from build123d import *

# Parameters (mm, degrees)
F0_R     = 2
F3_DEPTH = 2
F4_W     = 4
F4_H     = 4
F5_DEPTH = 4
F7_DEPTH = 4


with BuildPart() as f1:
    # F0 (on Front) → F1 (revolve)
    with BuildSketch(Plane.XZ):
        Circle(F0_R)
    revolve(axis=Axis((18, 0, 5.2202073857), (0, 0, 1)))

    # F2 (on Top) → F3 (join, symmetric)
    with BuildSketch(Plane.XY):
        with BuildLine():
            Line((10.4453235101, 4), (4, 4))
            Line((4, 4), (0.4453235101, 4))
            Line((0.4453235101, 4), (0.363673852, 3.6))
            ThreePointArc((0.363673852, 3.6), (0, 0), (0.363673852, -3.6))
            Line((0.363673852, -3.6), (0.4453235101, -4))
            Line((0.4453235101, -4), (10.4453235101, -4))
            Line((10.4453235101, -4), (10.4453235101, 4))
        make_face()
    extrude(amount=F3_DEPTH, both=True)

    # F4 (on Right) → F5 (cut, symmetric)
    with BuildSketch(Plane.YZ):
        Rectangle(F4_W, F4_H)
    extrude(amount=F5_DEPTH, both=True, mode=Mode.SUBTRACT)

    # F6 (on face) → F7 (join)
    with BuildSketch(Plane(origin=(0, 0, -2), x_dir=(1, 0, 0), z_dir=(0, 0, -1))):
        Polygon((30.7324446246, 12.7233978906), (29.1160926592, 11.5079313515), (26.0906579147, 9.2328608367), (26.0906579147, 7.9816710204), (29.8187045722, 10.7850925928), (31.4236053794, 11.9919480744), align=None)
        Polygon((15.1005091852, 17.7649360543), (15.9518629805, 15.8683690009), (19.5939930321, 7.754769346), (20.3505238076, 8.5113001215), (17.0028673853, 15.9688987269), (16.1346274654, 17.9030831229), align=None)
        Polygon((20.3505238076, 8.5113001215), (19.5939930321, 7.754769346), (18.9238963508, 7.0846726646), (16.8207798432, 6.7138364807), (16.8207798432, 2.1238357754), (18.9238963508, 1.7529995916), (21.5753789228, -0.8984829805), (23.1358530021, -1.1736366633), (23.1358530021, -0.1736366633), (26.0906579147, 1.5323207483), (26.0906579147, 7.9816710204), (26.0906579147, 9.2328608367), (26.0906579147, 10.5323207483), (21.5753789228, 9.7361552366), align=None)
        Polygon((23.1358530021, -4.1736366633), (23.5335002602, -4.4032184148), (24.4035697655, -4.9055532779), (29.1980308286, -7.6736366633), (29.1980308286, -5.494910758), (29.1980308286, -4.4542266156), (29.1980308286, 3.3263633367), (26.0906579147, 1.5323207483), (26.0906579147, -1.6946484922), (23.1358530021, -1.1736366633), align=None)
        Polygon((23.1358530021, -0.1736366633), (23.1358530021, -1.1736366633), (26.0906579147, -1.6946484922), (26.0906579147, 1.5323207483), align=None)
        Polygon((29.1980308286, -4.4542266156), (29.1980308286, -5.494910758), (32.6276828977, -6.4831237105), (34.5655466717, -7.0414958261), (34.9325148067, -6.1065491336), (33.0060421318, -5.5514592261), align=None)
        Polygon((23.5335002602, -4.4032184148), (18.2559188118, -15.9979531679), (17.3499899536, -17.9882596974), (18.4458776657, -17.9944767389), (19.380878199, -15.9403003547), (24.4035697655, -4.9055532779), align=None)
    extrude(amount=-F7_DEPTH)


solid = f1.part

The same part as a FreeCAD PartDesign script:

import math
import FreeCAD as App
import Part
import Sketcher

V = App.Vector
Q = App.Units.Quantity

doc = App.newDocument("Part")
body = doc.addObject("PartDesign::Body", "Body")

# Sketch on XZ plane
sketch1 = doc.addObject("Sketcher::SketchObject", "Sketch")
body.addObject(sketch1)
sketch1.AttachmentSupport = (doc.XZ_Plane, [""])
sketch1.MapMode = "FlatFace"
sketch1.addGeometry(Part.Circle(V(0, 0, 0), V(0, 0, 1), 2), False)
sketch1.addGeometry(Part.LineSegment(V(18, 0, 0), V(18, 10, 0)), True)  # axis
sketch1.addConstraint(Sketcher.Constraint("Vertical", 1))
sketch1.addConstraint(Sketcher.Constraint("Coincident", 0, 3, -1, 1))
sketch1.addConstraint(Sketcher.Constraint("PointOnObject", 1, 1, -1))
sketch1.addConstraint(Sketcher.Constraint("Diameter", 0, Q("4 mm")))
sketch1.addConstraint(Sketcher.Constraint("DistanceY", 1, 1, 1, 2, Q("10 mm")))
sketch1.addConstraint(Sketcher.Constraint("DistanceX", -1, 1, 1, 1, Q("18 mm")))
revolution = doc.addObject("PartDesign::Revolution", "Revolution")
body.addObject(revolution)
revolution.Profile = sketch1
revolution.ReferenceAxis = (sketch1, ["Axis0"])
revolution.Angle = 360

# Sketch on XY plane
sketch2 = doc.addObject("Sketcher::SketchObject", "Sketch001")
body.addObject(sketch2)
sketch2.AttachmentSupport = (doc.XY_Plane, [""])
sketch2.MapMode = "FlatFace"
sketch2.addGeometry(Part.LineSegment(V(10.45, 4, 0), V(0.45, 4, 0)), False)
sketch2.addGeometry(Part.LineSegment(V(0.45, 4, 0), V(0.36, 3.6, 0)), False)
sketch2.addGeometry(Part.ArcOfCircle(Part.Circle(V(18, 0, 0), V(0, 0, 1), 18), math.radians(168), math.radians(192)), False)
sketch2.addGeometry(Part.LineSegment(V(0.36, -3.6, 0), V(0.45, -4, 0)), False)
sketch2.addGeometry(Part.LineSegment(V(0.45, -4, 0), V(10.45, -4, 0)), False)
sketch2.addGeometry(Part.LineSegment(V(10.45, -4, 0), V(10.45, 4, 0)), False)
sketch2.addConstraint(Sketcher.Constraint("Coincident", 0, 2, 1, 1))
sketch2.addConstraint(Sketcher.Constraint("Tangent", 1, 2, 2, 1))
sketch2.addConstraint(Sketcher.Constraint("Tangent", 2, 2, 3, 1))
sketch2.addConstraint(Sketcher.Constraint("Coincident", 3, 2, 4, 1))
sketch2.addConstraint(Sketcher.Constraint("Coincident", 4, 2, 5, 1))
sketch2.addConstraint(Sketcher.Constraint("Coincident", 5, 2, 0, 1))
sketch2.addConstraint(Sketcher.Constraint("Horizontal", 0))
sketch2.addConstraint(Sketcher.Constraint("Horizontal", 4))
sketch2.addConstraint(Sketcher.Constraint("Vertical", 5))
sketch2.addConstraint(Sketcher.Constraint("Symmetric", 1, 2, 2, 2, -1))
sketch2.addConstraint(Sketcher.Constraint("Vertical", 0, 2, 3, 2))
sketch2.addConstraint(Sketcher.Constraint("Radius", 2, Q("18 mm")))
sketch2.addConstraint(Sketcher.Constraint("DistanceX", 0, 2, 0, 1, Q("10 mm")))
sketch2.addConstraint(Sketcher.Constraint("DistanceY", 5, 1, 5, 2, Q("8 mm")))
sketch2.addConstraint(Sketcher.Constraint("DistanceX", -1, 1, 2, 3, Q("18 mm")))
sketch2.addConstraint(Sketcher.Constraint("DistanceY", -1, 1, 1, 2, Q("3.6 mm")))
pad1 = doc.addObject("PartDesign::Pad", "Pad")
body.addObject(pad1)
pad1.Profile = sketch2
pad1.Length = 4
pad1.Midplane = True

# Sketch on YZ plane
sketch3 = doc.addObject("Sketcher::SketchObject", "Sketch002")
body.addObject(sketch3)
sketch3.AttachmentSupport = (doc.YZ_Plane, [""])
sketch3.MapMode = "FlatFace"
sketch3.addGeometry(Part.LineSegment(V(-2, 2, 0), V(-2, -2, 0)), False)
sketch3.addGeometry(Part.LineSegment(V(-2, -2, 0), V(2, -2, 0)), False)
sketch3.addGeometry(Part.LineSegment(V(2, -2, 0), V(2, 2, 0)), False)
sketch3.addGeometry(Part.LineSegment(V(2, 2, 0), V(-2, 2, 0)), False)
sketch3.addConstraint(Sketcher.Constraint("Coincident", 0, 2, 1, 1))
sketch3.addConstraint(Sketcher.Constraint("Coincident", 1, 2, 2, 1))
sketch3.addConstraint(Sketcher.Constraint("Coincident", 2, 2, 3, 1))
sketch3.addConstraint(Sketcher.Constraint("Coincident", 3, 2, 0, 1))
sketch3.addConstraint(Sketcher.Constraint("Vertical", 0))
sketch3.addConstraint(Sketcher.Constraint("Horizontal", 1))
sketch3.addConstraint(Sketcher.Constraint("Vertical", 2))
sketch3.addConstraint(Sketcher.Constraint("Horizontal", 3))
sketch3.addConstraint(Sketcher.Constraint("Symmetric", 0, 2, 2, 2, -1, 1))
sketch3.addConstraint(Sketcher.Constraint("Equal", 3, 0))
sketch3.addConstraint(Sketcher.Constraint("DistanceX", 1, 1, 1, 2, Q("4 mm")))
pocket1 = doc.addObject("PartDesign::Pocket", "Pocket")
body.addObject(pocket1)
pocket1.Profile = sketch3
pocket1.Length = 8
pocket1.Midplane = True

# Sketch on XY plane
sketch4 = doc.addObject("Sketcher::SketchObject", "Sketch003")
body.addObject(sketch4)
sketch4.AttachmentSupport = (doc.XY_Plane, [""])
sketch4.MapMode = "FlatFace"
sketch4.AttachmentOffset = App.Placement(V(0, 0, -2), App.Rotation())
sketch4.addGeometry(Part.LineSegment(V(30.73, -12.72, 0), V(29.12, -11.51, 0)), False)
sketch4.addGeometry(Part.LineSegment(V(29.12, -11.51, 0), V(26.09, -9.23, 0)), False)
sketch4.addGeometry(Part.LineSegment(V(26.09, -9.23, 0), V(26.09, -10.53, 0)), False)
sketch4.addGeometry(Part.LineSegment(V(26.09, -10.53, 0), V(21.58, -9.74, 0)), False)
sketch4.addGeometry(Part.LineSegment(V(21.58, -9.74, 0), V(20.35, -8.51, 0)), False)
sketch4.addGeometry(Part.LineSegment(V(20.35, -8.51, 0), V(17, -15.97, 0)), False)
sketch4.addGeometry(Part.LineSegment(V(17, -15.97, 0), V(16.13, -17.9, 0)), False)
sketch4.addGeometry(Part.LineSegment(V(16.13, -17.9, 0), V(15.1, -17.76, 0)), False)
sketch4.addGeometry(Part.LineSegment(V(15.1, -17.76, 0), V(15.95, -15.87, 0)), False)
sketch4.addGeometry(Part.LineSegment(V(15.95, -15.87, 0), V(19.59, -7.75, 0)), False)
sketch4.addGeometry(Part.LineSegment(V(19.59, -7.75, 0), V(18.92, -7.08, 0)), False)
sketch4.addGeometry(Part.LineSegment(V(18.92, -7.08, 0), V(16.82, -6.71, 0)), False)
sketch4.addGeometry(Part.LineSegment(V(16.82, -6.71, 0), V(16.82, -2.12, 0)), False)
sketch4.addGeometry(Part.LineSegment(V(16.82, -2.12, 0), V(18.92, -1.75, 0)), False)
sketch4.addGeometry(Part.LineSegment(V(18.92, -1.75, 0), V(21.58, 0.9, 0)), False)
sketch4.addGeometry(Part.LineSegment(V(21.58, 0.9, 0), V(23.14, 1.17, 0)), False)
sketch4.addGeometry(Part.LineSegment(V(23.14, 1.17, 0), V(23.14, 4.17, 0)), False)
sketch4.addGeometry(Part.LineSegment(V(23.14, 4.17, 0), V(23.53, 4.4, 0)), False)
sketch4.addGeometry(Part.LineSegment(V(23.53, 4.4, 0), V(18.26, 16, 0)), False)
sketch4.addGeometry(Part.LineSegment(V(18.26, 16, 0), V(17.35, 17.99, 0)), False)
sketch4.addGeometry(Part.LineSegment(V(17.35, 17.99, 0), V(18.45, 17.99, 0)), False)
sketch4.addGeometry(Part.LineSegment(V(18.45, 17.99, 0), V(19.38, 15.94, 0)), False)
sketch4.addGeometry(Part.LineSegment(V(19.38, 15.94, 0), V(24.4, 4.91, 0)), False)
sketch4.addGeometry(Part.LineSegment(V(24.4, 4.91, 0), V(29.2, 7.67, 0)), False)
sketch4.addGeometry(Part.LineSegment(V(29.2, 7.67, 0), V(29.2, 5.49, 0)), False)
sketch4.addGeometry(Part.LineSegment(V(29.2, 5.49, 0), V(32.63, 6.48, 0)), False)
sketch4.addGeometry(Part.LineSegment(V(32.63, 6.48, 0), V(34.57, 7.04, 0)), False)
sketch4.addGeometry(Part.LineSegment(V(34.57, 7.04, 0), V(34.93, 6.11, 0)), False)
sketch4.addGeometry(Part.LineSegment(V(34.93, 6.11, 0), V(33.01, 5.55, 0)), False)
sketch4.addGeometry(Part.LineSegment(V(33.01, 5.55, 0), V(29.2, 4.45, 0)), False)
sketch4.addGeometry(Part.LineSegment(V(29.2, 4.45, 0), V(29.2, -3.33, 0)), False)
sketch4.addGeometry(Part.LineSegment(V(29.2, -3.33, 0), V(26.09, -1.53, 0)), False)
sketch4.addGeometry(Part.LineSegment(V(26.09, -1.53, 0), V(26.09, -7.98, 0)), False)
sketch4.addGeometry(Part.LineSegment(V(26.09, -7.98, 0), V(29.82, -10.79, 0)), False)
sketch4.addGeometry(Part.LineSegment(V(29.82, -10.79, 0), V(31.42, -11.99, 0)), False)
sketch4.addGeometry(Part.LineSegment(V(31.42, -11.99, 0), V(30.73, -12.72, 0)), False)
sketch4.addConstraint(Sketcher.Constraint("Coincident", 0, 2, 1, 1))
sketch4.addConstraint(Sketcher.Constraint("Coincident", 1, 2, 2, 1))
sketch4.addConstraint(Sketcher.Constraint("Coincident", 2, 2, 3, 1))
sketch4.addConstraint(Sketcher.Constraint("Coincident", 3, 2, 4, 1))
sketch4.addConstraint(Sketcher.Constraint("Coincident", 4, 2, 5, 1))
sketch4.addConstraint(Sketcher.Constraint("Coincident", 5, 2, 6, 1))
sketch4.addConstraint(Sketcher.Constraint("Coincident", 6, 2, 7, 1))
sketch4.addConstraint(Sketcher.Constraint("Coincident", 7, 2, 8, 1))
sketch4.addConstraint(Sketcher.Constraint("Coincident", 8, 2, 9, 1))
sketch4.addConstraint(Sketcher.Constraint("Coincident", 9, 2, 10, 1))
sketch4.addConstraint(Sketcher.Constraint("Coincident", 10, 2, 11, 1))
sketch4.addConstraint(Sketcher.Constraint("Coincident", 11, 2, 12, 1))
sketch4.addConstraint(Sketcher.Constraint("Coincident", 12, 2, 13, 1))
sketch4.addConstraint(Sketcher.Constraint("Coincident", 13, 2, 14, 1))
sketch4.addConstraint(Sketcher.Constraint("Coincident", 14, 2, 15, 1))
sketch4.addConstraint(Sketcher.Constraint("Coincident", 15, 2, 16, 1))
sketch4.addConstraint(Sketcher.Constraint("Coincident", 16, 2, 17, 1))
sketch4.addConstraint(Sketcher.Constraint("Coincident", 17, 2, 18, 1))
sketch4.addConstraint(Sketcher.Constraint("Coincident", 18, 2, 19, 1))
sketch4.addConstraint(Sketcher.Constraint("Coincident", 19, 2, 20, 1))
sketch4.addConstraint(Sketcher.Constraint("Coincident", 20, 2, 21, 1))
sketch4.addConstraint(Sketcher.Constraint("Coincident", 21, 2, 22, 1))
sketch4.addConstraint(Sketcher.Constraint("Coincident", 22, 2, 23, 1))
sketch4.addConstraint(Sketcher.Constraint("Coincident", 23, 2, 24, 1))
sketch4.addConstraint(Sketcher.Constraint("Coincident", 24, 2, 25, 1))
sketch4.addConstraint(Sketcher.Constraint("Coincident", 25, 2, 26, 1))
sketch4.addConstraint(Sketcher.Constraint("Coincident", 26, 2, 27, 1))
sketch4.addConstraint(Sketcher.Constraint("Coincident", 27, 2, 28, 1))
sketch4.addConstraint(Sketcher.Constraint("Coincident", 28, 2, 29, 1))
sketch4.addConstraint(Sketcher.Constraint("Coincident", 29, 2, 30, 1))
sketch4.addConstraint(Sketcher.Constraint("Coincident", 30, 2, 31, 1))
sketch4.addConstraint(Sketcher.Constraint("Coincident", 31, 2, 32, 1))
sketch4.addConstraint(Sketcher.Constraint("Coincident", 32, 2, 33, 1))
sketch4.addConstraint(Sketcher.Constraint("Coincident", 33, 2, 34, 1))
sketch4.addConstraint(Sketcher.Constraint("Coincident", 34, 2, 35, 1))
sketch4.addConstraint(Sketcher.Constraint("Coincident", 35, 2, 0, 1))
sketch4.addConstraint(Sketcher.Constraint("Vertical", 2))
sketch4.addConstraint(Sketcher.Constraint("Vertical", 12))
sketch4.addConstraint(Sketcher.Constraint("Vertical", 16))
sketch4.addConstraint(Sketcher.Constraint("Vertical", 24))
sketch4.addConstraint(Sketcher.Constraint("Vertical", 30))
sketch4.addConstraint(Sketcher.Constraint("Vertical", 32))
sketch4.addConstraint(Sketcher.Constraint("Parallel", 0, 1))
sketch4.addConstraint(Sketcher.Constraint("Parallel", 5, 6))
sketch4.addConstraint(Sketcher.Constraint("Parallel", 6, 8))
sketch4.addConstraint(Sketcher.Constraint("Parallel", 8, 9))
sketch4.addConstraint(Sketcher.Constraint("Parallel", 4, 10))
sketch4.addConstraint(Sketcher.Constraint("Parallel", 3, 11))
sketch4.addConstraint(Sketcher.Constraint("Perpendicular", 10, 14))
sketch4.addConstraint(Sketcher.Constraint("Parallel", 13, 15))
sketch4.addConstraint(Sketcher.Constraint("Parallel", 18, 19))
sketch4.addConstraint(Sketcher.Constraint("Parallel", 19, 21))
sketch4.addConstraint(Sketcher.Constraint("Parallel", 21, 22))
sketch4.addConstraint(Sketcher.Constraint("Parallel", 17, 23))
sketch4.addConstraint(Sketcher.Constraint("Parallel", 25, 26))
sketch4.addConstraint(Sketcher.Constraint("Parallel", 26, 28))
sketch4.addConstraint(Sketcher.Constraint("Parallel", 28, 29))
sketch4.addConstraint(Sketcher.Constraint("Parallel", 1, 33))
sketch4.addConstraint(Sketcher.Constraint("Parallel", 33, 34))
sketch4.addConstraint(Sketcher.Constraint("Vertical", 10, 2, 13, 2))
sketch4.addConstraint(Sketcher.Constraint("Vertical", 3, 2, 14, 2))
sketch4.addConstraint(Sketcher.Constraint("Vertical", 24, 2, 29, 2))
sketch4.addConstraint(Sketcher.Constraint("Vertical", 2, 2, 31, 2))
sketch4.addConstraint(Sketcher.Constraint("Equal", 11, 13))
sketch4.addConstraint(Sketcher.Constraint("DistanceY", 16, 1, 16, 2, Q("3 mm")))
sketch4.addConstraint(Sketcher.Constraint("Angle", 3, Q("170 deg")))
sketch4.addConstraint(Sketcher.Constraint("Angle", 4, Q("135 deg")))
sketch4.addConstraint(Sketcher.Constraint("Angle", 17, Q("30 deg")))
sketch4.addConstraint(Sketcher.Constraint("Angle", 31, Q("150 deg")))
sketch4.addConstraint(Sketcher.Constraint("DistanceY", 12, 1, 12, 2, Q("4.590001 mm")))
sketch4.addConstraint(Sketcher.Constraint("DistanceY", 16, 2, 23, 2, Q("3.5 mm")))
sketch4.addConstraint(Sketcher.Constraint("DistanceY", 30, 2, 15, 2, Q("4.5 mm")))
sketch4.addConstraint(Sketcher.Constraint("DistanceY", 13, 2, -1, 1, Q("1.753 mm")))
sketch4.addConstraint(Sketcher.Constraint("DistanceX", 20, 2, 21, 2, Q("0.935001 mm")))
sketch4.addConstraint(Sketcher.Constraint("DistanceY", 2, 2, 2, 1, Q("1.29946 mm")))
sketch4.addConstraint(Sketcher.Constraint("DistanceY", 30, 2, 30, 1, Q("7.78059 mm")))
sketch4.addConstraint(Sketcher.Constraint("DistanceY", 32, 2, 32, 1, Q("6.44935 mm")))
sketch4.addConstraint(Sketcher.Constraint("DistanceY", 4, 2, -1, 1, Q("8.5113 mm")))
sketch4.addConstraint(Sketcher.Constraint("DistanceY", 5, 2, -1, 1, Q("15.968899 mm")))
sketch4.addConstraint(Sketcher.Constraint("DistanceX", -1, 1, 17, 2, Q("23.5335 mm")))
sketch4.addConstraint(Sketcher.Constraint("DistanceY", -1, 1, 21, 2, Q("15.9403 mm")))
sketch4.addConstraint(Sketcher.Constraint("DistanceX", 11, 2, 3, 2, Q("4.754599 mm")))
sketch4.addConstraint(Sketcher.Constraint("DistanceX", 20, 2, 14, 2, Q("3.129501 mm")))
sketch4.addConstraint(Sketcher.Constraint("DistanceX", 33, 2, 34, 2, Q("1.604901 mm")))
sketch4.addConstraint(Sketcher.Constraint("Distance", 6, Q("2.12012 mm")))
sketch4.addConstraint(Sketcher.Constraint("Distance", 9, Q("8.893571 mm")))
sketch4.addConstraint(Sketcher.Constraint("Distance", 10, Q("0.94766 mm")))
sketch4.addConstraint(Sketcher.Constraint("Distance", 11, Q("2.13556 mm")))
sketch4.addConstraint(Sketcher.Constraint("Distance", 18, Q("12.739338 mm")))
sketch4.addConstraint(Sketcher.Constraint("Distance", 21, Q("2.25696 mm")))
sketch4.addConstraint(Sketcher.Constraint("Distance", 22, Q("12.12407 mm")))
sketch4.addConstraint(Sketcher.Constraint("Distance", 28, Q("2.00485 mm")))
sketch4.addConstraint(Sketcher.Constraint("Distance", 35, Q("1.006341 mm")))
sketch4.addConstraint(Sketcher.Constraint("DistanceY", 24, 2, 24, 1, Q("2.178726 mm")))
sketch4.addConstraint(Sketcher.Constraint("DistanceY", 0, 2, -1, 1, Q("11.507931 mm")))
sketch4.addConstraint(Sketcher.Constraint("DistanceY", 1, 2, -1, 1, Q("9.232861 mm")))
sketch4.addConstraint(Sketcher.Constraint("DistanceX", -1, 1, 3, 2, Q("21.575379 mm")))
sketch4.addConstraint(Sketcher.Constraint("DistanceX", -1, 1, 7, 2, Q("15.100509 mm")))
sketch4.addConstraint(Sketcher.Constraint("DistanceY", 8, 2, -1, 1, Q("15.868369 mm")))
sketch4.addConstraint(Sketcher.Constraint("DistanceY", -1, 1, 17, 2, Q("4.403218 mm")))
sketch4.addConstraint(Sketcher.Constraint("DistanceX", -1, 1, 19, 2, Q("17.34999 mm")))
sketch4.addConstraint(Sketcher.Constraint("DistanceY", -1, 1, 27, 2, Q("6.106549 mm")))
sketch4.addConstraint(Sketcher.Constraint("DistanceY", -1, 1, 28, 2, Q("5.551459 mm")))
sketch4.addConstraint(Sketcher.Constraint("DistanceY", 31, 2, -1, 1, Q("1.532321 mm")))
sketch4.addConstraint(Sketcher.Constraint("DistanceY", 34, 2, -1, 1, Q("11.991948 mm")))
sketch4.addConstraint(Sketcher.Constraint("DistanceX", 4, 2, 0, 2, Q("8.765569 mm")))
sketch4.addConstraint(Sketcher.Constraint("DistanceY", 22, 2, 25, 2, Q("1.57757 mm")))
sketch4.addConstraint(Sketcher.Constraint("DistanceY", 26, 2, 23, 2, Q("0.632141 mm")))
pad2 = doc.addObject("PartDesign::Pad", "Pad001")
body.addObject(pad2)
pad2.Profile = sketch4
pad2.Length = 4

doc.recompute()
